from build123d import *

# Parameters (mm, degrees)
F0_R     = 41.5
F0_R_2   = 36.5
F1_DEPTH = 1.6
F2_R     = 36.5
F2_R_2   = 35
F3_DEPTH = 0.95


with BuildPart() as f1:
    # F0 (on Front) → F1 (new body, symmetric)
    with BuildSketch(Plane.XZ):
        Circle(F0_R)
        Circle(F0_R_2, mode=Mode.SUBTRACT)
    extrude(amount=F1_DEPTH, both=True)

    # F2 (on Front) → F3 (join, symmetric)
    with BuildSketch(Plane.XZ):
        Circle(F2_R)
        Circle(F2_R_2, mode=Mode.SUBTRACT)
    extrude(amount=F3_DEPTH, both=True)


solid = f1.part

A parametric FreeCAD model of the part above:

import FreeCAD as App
import Part
import Sketcher
from FreeCAD import Vector

doc = App.newDocument("Part")
params = doc.addObject("Spreadsheet::Sheet", "Params")
for row, (alias, value) in enumerate([
    ("sketch1_diameter", "83 mm"),
    ("sketch1_diameter2", "73 mm"),
    ("pad1_length", "3.2 mm"),
    ("sketch2_diameter", "73 mm"),
    ("sketch2_diameter2", "70 mm"),
    ("pad2_length", "1.9 mm"),
], start=1):
    params.set(f"A{row}", alias)
    params.set(f"B{row}", "=" + value)
    params.setAlias(f"B{row}", alias)

body = doc.addObject("PartDesign::Body", "Body")

# Sketch on XZ plane
sketch1 = doc.addObject("Sketcher::SketchObject", "Sketch")
body.addObject(sketch1)
sketch1.AttachmentSupport = (doc.XZ_Plane, [""])
sketch1.MapMode = "FlatFace"
sketch1.addGeometry([
    Part.Circle(Vector(0, 0, 0), Vector(0, 0, 1), 41.5),
    Part.Circle(Vector(0, 0, 0), Vector(0, 0, 1), 36.5),
], False)
sketch1.addConstraint([
    Sketcher.Constraint("Coincident", 0, 3, -1, 1),
    Sketcher.Constraint("Coincident", 1, 3, -1, 1),
    Sketcher.Constraint("Diameter", 0, 83.0),
    Sketcher.Constraint("Diameter", 1, 73.0),
])
sketch1.setExpression("Constraints[2]", "Params.sketch1_diameter")
sketch1.setExpression("Constraints[3]", "Params.sketch1_diameter2")
pad1 = doc.addObject("PartDesign::Pad", "Pad")
body.addObject(pad1)
pad1.Profile = sketch1
pad1.setExpression("Length", "Params.pad1_length")
pad1.Midplane = True

# Sketch on XZ plane
sketch2 = doc.addObject("Sketcher::SketchObject", "Sketch001")
body.addObject(sketch2)
sketch2.AttachmentSupport = (doc.XZ_Plane, [""])
sketch2.MapMode = "FlatFace"
sketch2.addGeometry([
    Part.Circle(Vector(0, 0, 0), Vector(0, 0, 1), 36.5),
    Part.Circle(Vector(0, 0, 0), Vector(0, 0, 1), 35),
], False)
sketch2.addConstraint([
    Sketcher.Constraint("Coincident", 0, 3, -1, 1),
    Sketcher.Constraint("Coincident", 1, 3, -1, 1),
    Sketcher.Constraint("Diameter", 0, 73.0),
    Sketcher.Constraint("Diameter", 1, 70.0),
])
sketch2.setExpression("Constraints[2]", "Params.sketch2_diameter")
sketch2.setExpression("Constraints[3]", "Params.sketch2_diameter2")
pad2 = doc.addObject("PartDesign::Pad", "Pad001")
body.addObject(pad2)
pad2.Profile = sketch2
pad2.setExpression("Length", "Params.pad2_length")
pad2.Midplane = True

doc.recompute()
